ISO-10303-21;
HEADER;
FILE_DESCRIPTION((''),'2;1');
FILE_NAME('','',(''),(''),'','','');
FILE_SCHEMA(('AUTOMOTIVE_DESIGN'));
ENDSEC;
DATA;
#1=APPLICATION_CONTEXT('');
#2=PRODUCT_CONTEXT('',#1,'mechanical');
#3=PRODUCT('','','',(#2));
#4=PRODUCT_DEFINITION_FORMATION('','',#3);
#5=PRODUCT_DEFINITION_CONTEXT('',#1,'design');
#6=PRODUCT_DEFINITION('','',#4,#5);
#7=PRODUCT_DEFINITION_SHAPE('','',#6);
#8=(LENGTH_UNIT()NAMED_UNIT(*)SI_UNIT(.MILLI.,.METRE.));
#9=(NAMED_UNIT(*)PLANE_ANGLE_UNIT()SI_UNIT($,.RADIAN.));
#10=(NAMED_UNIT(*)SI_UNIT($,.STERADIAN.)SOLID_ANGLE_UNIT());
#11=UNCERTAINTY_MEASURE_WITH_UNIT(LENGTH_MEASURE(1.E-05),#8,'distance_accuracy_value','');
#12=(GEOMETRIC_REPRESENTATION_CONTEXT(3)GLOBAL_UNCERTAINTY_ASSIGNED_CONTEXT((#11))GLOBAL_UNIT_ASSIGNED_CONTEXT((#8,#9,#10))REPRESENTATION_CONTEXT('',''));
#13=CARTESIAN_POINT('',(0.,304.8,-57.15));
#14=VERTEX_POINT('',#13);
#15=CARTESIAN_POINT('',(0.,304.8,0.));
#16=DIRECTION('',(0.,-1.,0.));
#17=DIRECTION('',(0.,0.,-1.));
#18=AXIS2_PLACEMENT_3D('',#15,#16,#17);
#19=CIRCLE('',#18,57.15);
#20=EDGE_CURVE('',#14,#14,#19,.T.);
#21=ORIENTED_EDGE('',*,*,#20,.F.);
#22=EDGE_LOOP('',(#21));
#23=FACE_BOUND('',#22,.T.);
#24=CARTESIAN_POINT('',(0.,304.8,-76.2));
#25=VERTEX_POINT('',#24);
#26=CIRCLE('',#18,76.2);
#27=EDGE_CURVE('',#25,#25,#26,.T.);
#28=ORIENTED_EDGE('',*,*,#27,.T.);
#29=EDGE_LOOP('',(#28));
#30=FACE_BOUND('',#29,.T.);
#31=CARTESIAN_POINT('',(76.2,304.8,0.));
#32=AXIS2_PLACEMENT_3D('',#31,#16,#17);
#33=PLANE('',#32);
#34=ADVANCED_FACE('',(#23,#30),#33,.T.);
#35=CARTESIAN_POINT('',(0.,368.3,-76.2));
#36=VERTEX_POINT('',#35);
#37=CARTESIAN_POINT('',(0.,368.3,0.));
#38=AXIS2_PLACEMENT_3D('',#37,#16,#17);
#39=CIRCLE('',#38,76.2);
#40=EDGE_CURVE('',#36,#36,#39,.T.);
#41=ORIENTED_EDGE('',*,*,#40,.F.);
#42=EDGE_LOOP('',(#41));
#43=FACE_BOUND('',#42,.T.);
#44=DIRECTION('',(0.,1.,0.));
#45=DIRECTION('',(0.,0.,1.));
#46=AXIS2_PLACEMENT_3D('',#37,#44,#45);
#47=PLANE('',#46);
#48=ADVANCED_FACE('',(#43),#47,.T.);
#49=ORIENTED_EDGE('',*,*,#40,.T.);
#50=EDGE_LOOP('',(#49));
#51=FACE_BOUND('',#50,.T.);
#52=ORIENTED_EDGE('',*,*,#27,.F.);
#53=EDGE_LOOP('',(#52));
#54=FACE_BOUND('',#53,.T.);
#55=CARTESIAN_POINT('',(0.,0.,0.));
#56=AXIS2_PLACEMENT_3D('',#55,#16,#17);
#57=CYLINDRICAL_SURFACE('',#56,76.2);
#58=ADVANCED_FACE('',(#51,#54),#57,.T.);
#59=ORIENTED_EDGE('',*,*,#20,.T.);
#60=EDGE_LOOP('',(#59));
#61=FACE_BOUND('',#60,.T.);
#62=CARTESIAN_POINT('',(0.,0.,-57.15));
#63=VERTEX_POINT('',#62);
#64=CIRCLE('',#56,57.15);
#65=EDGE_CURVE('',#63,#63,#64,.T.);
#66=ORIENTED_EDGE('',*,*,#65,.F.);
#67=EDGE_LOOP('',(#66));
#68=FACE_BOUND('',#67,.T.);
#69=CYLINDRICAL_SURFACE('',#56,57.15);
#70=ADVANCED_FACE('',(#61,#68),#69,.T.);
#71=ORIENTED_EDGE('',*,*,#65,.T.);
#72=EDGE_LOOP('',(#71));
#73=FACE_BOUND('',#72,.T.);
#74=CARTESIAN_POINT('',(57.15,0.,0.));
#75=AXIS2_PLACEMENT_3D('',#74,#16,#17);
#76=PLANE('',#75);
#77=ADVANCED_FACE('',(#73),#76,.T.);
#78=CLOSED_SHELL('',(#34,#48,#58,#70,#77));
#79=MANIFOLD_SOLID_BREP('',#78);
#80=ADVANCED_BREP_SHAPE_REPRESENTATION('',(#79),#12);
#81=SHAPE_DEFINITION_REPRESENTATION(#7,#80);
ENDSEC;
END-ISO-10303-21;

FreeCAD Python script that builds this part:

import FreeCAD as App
import Part
import Sketcher
Q = App.Units.Quantity

doc = App.newDocument("Part")
body = doc.addObject("PartDesign::Body", "Body")

sketch1 = doc.addObject("Sketcher::SketchObject", "Sketch")
body.addObject(sketch1)
sketch1.AttachmentSupport = (doc.XY_Plane, [""])
sketch1.MapMode = "FlatFace"
sketch1.addGeometry([
    Part.LineSegment(App.Vector(0, 368, 0), App.Vector(0, 0, 0)),
    Part.LineSegment(App.Vector(0, 0, 0), App.Vector(57, 0, 0)),
    Part.LineSegment(App.Vector(57, 0, 0), App.Vector(57, 305, 0)),
    Part.LineSegment(App.Vector(57, 305, 0), App.Vector(76, 305, 0)),
    Part.LineSegment(App.Vector(76, 305, 0), App.Vector(76, 368, 0)),
    Part.LineSegment(App.Vector(76, 368, 0), App.Vector(0, 368, 0)),
], False)
sketch1.addConstraint([
    Sketcher.Constraint("Coincident", 0, 2, 1, 1),
    Sketcher.Constraint("Coincident", 1, 2, 2, 1),
    Sketcher.Constraint("Coincident", 2, 2, 3, 1),
    Sketcher.Constraint("Coincident", 3, 2, 4, 1),
    Sketcher.Constraint("Coincident", 4, 2, 5, 1),
    Sketcher.Constraint("Coincident", 5, 2, 0, 1),
    Sketcher.Constraint("Vertical", 0),
    Sketcher.Constraint("Horizontal", 1),
    Sketcher.Constraint("Vertical", 2),
    Sketcher.Constraint("Horizontal", 3),
    Sketcher.Constraint("Vertical", 4),
    Sketcher.Constraint("Horizontal", 5),
    Sketcher.Constraint("Coincident", 0, 2, -1, 1),
    Sketcher.Constraint("DistanceX", 5, 2, 5, 1, Q("3 in")),
    Sketcher.Constraint("DistanceY", 2, 1, 2, 2, Q("12 in")),
    Sketcher.Constraint("DistanceY", 0, 2, 0, 1, Q("14.5 in")),
    Sketcher.Constraint("DistanceX", 1, 1, 1, 2, Q("2.25 in")),
])
revolution = doc.addObject("PartDesign::Revolution", "Revolution")
body.addObject(revolution)
revolution.Profile = sketch1
revolution.ReferenceAxis = (sketch1, ["V_Axis"])
revolution.Angle = 360

doc.recompute()
